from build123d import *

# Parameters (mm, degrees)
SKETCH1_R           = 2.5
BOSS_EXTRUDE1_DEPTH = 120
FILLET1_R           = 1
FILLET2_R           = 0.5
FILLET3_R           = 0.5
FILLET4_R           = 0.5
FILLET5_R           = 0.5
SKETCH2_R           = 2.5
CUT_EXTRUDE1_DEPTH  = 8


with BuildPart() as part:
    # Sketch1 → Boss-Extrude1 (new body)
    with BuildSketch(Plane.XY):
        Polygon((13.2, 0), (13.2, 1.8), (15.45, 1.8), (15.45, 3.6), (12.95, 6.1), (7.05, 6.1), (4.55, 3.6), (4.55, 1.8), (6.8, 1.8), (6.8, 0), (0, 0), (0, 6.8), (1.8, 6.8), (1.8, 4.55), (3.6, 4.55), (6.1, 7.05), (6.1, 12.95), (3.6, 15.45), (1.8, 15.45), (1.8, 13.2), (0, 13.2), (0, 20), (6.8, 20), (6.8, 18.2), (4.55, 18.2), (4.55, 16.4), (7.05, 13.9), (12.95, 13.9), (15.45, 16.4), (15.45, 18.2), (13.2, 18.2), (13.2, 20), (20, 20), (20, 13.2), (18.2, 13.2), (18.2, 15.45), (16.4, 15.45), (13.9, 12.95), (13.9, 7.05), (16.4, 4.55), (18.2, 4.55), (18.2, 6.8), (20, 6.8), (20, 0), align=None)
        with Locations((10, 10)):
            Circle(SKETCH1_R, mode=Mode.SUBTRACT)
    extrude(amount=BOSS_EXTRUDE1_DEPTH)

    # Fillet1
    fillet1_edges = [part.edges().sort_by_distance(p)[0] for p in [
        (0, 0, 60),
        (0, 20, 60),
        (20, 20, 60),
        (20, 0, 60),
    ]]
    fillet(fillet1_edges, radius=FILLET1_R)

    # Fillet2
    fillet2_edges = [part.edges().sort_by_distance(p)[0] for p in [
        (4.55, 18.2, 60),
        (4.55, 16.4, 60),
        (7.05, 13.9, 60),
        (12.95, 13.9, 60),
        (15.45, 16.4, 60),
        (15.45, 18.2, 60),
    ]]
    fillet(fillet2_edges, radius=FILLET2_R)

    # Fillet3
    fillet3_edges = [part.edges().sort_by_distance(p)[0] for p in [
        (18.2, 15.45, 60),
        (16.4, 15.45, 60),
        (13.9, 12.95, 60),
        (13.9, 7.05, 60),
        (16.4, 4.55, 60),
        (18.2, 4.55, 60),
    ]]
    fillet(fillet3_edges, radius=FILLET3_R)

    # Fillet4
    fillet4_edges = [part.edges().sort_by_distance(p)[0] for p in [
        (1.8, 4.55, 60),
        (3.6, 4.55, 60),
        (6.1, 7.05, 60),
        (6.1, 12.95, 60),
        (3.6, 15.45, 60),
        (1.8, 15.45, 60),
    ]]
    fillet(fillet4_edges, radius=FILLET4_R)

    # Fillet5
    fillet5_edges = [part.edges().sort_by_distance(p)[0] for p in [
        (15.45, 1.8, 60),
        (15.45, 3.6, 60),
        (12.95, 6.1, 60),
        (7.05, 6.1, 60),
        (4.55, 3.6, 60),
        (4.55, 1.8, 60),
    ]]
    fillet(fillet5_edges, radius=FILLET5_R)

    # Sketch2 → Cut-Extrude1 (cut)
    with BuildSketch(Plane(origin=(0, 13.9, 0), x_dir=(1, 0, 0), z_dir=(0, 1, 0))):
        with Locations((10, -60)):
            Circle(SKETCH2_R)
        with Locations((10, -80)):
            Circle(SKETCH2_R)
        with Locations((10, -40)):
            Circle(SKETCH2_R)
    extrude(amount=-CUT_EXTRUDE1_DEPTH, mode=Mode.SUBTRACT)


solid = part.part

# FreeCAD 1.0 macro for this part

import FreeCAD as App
import Part
import Sketcher

V = App.Vector
Q = App.Units.Quantity


def edges_at(feature, points):
    """Names of the edges that pass closest to the given points."""
    edges = feature.Shape.Edges
    near = lambda p: min(range(len(edges)), key=lambda i: edges[i].distToShape(Part.Vertex(*p))[0])
    return sorted({f"Edge{near(p) + 1}" for p in points})


def add_polygon(sketch, points):
    """Adds a closed chain of lines whose ends are joined by coincident constraints."""
    first, n = sketch.GeometryCount, len(points)
    for a, b in zip(points, points[1:] + points[:1]):
        sketch.addGeometry(Part.LineSegment(App.Vector(*a, 0), App.Vector(*b, 0)), False)
    for i in range(n):
        sketch.addConstraint(Sketcher.Constraint("Coincident", first + i, 2, first + (i + 1) % n, 1))

doc = App.newDocument("Part")
body = doc.addObject("PartDesign::Body", "Body")

sketch1 = body.newObject("Sketcher::SketchObject", "Sketch")
sketch1.AttachmentSupport = (doc.getObject("XY_Plane"), [""])
sketch1.MapMode = "FlatFace"
add_polygon(sketch1, [(13.2, 1.8), (13.2, 0), (20, 0), (20, 6.8), (18.2, 6.8), (18.2, 4.5), (16.4, 4.5), (13.9, 7), (13.9, 12.9), (16.4, 15.4), (18.2, 15.4), (18.2, 13.2), (20, 13.2), (20, 20), (13.2, 20), (13.2, 18.2), (15.4, 18.2), (15.4, 16.4), (12.9, 13.9), (7, 13.9), (4.5, 16.4), (4.5, 18.2), (6.8, 18.2), (6.8, 20), (0, 20), (0, 13.2), (1.8, 13.2), (1.8, 15.4), (3.6, 15.4), (6.1, 12.9), (6.1, 7), (3.6, 4.5), (1.8, 4.5), (1.8, 6.8), (0, 6.8), (0, 0), (6.8, 0), (6.8, 1.8), (4.5, 1.8), (4.5, 3.6), (7, 6.1), (12.9, 6.1), (15.4, 3.6), (15.4, 1.8)])
sketch1.addGeometry(Part.Circle(V(10, 10, 0), V(0, 0, 1), 2.5), False)
sketch1.addConstraint(Sketcher.Constraint("Vertical", 0))
sketch1.addConstraint(Sketcher.Constraint("Horizontal", 1))
sketch1.addConstraint(Sketcher.Constraint("Vertical", 2))
sketch1.addConstraint(Sketcher.Constraint("Horizontal", 3))
sketch1.addConstraint(Sketcher.Constraint("Vertical", 4))
sketch1.addConstraint(Sketcher.Constraint("Horizontal", 5))
sketch1.addConstraint(Sketcher.Constraint("Vertical", 7))
sketch1.addConstraint(Sketcher.Constraint("Horizontal", 9))
sketch1.addConstraint(Sketcher.Constraint("Vertical", 10))
sketch1.addConstraint(Sketcher.Constraint("Horizontal", 11))
sketch1.addConstraint(Sketcher.Constraint("Vertical", 12))
sketch1.addConstraint(Sketcher.Constraint("Horizontal", 13))
sketch1.addConstraint(Sketcher.Constraint("Vertical", 14))
sketch1.addConstraint(Sketcher.Constraint("Horizontal", 15))
sketch1.addConstraint(Sketcher.Constraint("Vertical", 16))
sketch1.addConstraint(Sketcher.Constraint("Horizontal", 18))
sketch1.addConstraint(Sketcher.Constraint("Vertical", 20))
sketch1.addConstraint(Sketcher.Constraint("Horizontal", 21))
sketch1.addConstraint(Sketcher.Constraint("Vertical", 22))
sketch1.addConstraint(Sketcher.Constraint("Horizontal", 23))
sketch1.addConstraint(Sketcher.Constraint("Vertical", 24))
sketch1.addConstraint(Sketcher.Constraint("Horizontal", 25))
sketch1.addConstraint(Sketcher.Constraint("Vertical", 26))
sketch1.addConstraint(Sketcher.Constraint("Horizontal", 27))
sketch1.addConstraint(Sketcher.Constraint("Vertical", 29))
sketch1.addConstraint(Sketcher.Constraint("Horizontal", 31))
sketch1.addConstraint(Sketcher.Constraint("Vertical", 32))
sketch1.addConstraint(Sketcher.Constraint("Horizontal", 33))
sketch1.addConstraint(Sketcher.Constraint("Vertical", 34))
sketch1.addConstraint(Sketcher.Constraint("Horizontal", 35))
sketch1.addConstraint(Sketcher.Constraint("Vertical", 36))
sketch1.addConstraint(Sketcher.Constraint("Horizontal", 37))
sketch1.addConstraint(Sketcher.Constraint("Vertical", 38))
sketch1.addConstraint(Sketcher.Constraint("Horizontal", 40))
sketch1.addConstraint(Sketcher.Constraint("Vertical", 42))
sketch1.addConstraint(Sketcher.Constraint("Horizontal", 43))
sketch1.addConstraint(Sketcher.Constraint("Coincident", 34, 2, -1, 1))
sketch1.addConstraint(Sketcher.Constraint("PointOnObject", 0, 2, -1))
sketch1.addConstraint(Sketcher.Constraint("PointOnObject", 23, 2, -2))
sketch1.addConstraint(Sketcher.Constraint("Perpendicular", 6, 8))
sketch1.addConstraint(Sketcher.Constraint("Parallel", 8, 17))
sketch1.addConstraint(Sketcher.Constraint("Perpendicular", 17, 19))
sketch1.addConstraint(Sketcher.Constraint("Parallel", 19, 28))
sketch1.addConstraint(Sketcher.Constraint("Perpendicular", 28, 30))
sketch1.addConstraint(Sketcher.Constraint("Parallel", 30, 39))
sketch1.addConstraint(Sketcher.Constraint("Perpendicular", 39, 41))
sketch1.addConstraint(Sketcher.Constraint("Horizontal", 16, 2, 19, 2))
sketch1.addConstraint(Sketcher.Constraint("Horizontal", 15, 2, 20, 2))
sketch1.addConstraint(Sketcher.Constraint("Horizontal", 13, 2, 22, 2))
sketch1.addConstraint(Sketcher.Constraint("Horizontal", 11, 2, 24, 2))
sketch1.addConstraint(Sketcher.Constraint("Horizontal", 9, 2, 26, 2))
sketch1.addConstraint(Sketcher.Constraint("Horizontal", 7, 2, 28, 2))
sketch1.addConstraint(Sketcher.Constraint("Horizontal", 6, 2, 29, 2))
sketch1.addConstraint(Sketcher.Constraint("Horizontal", 5, 2, 30, 2))
sketch1.addConstraint(Sketcher.Constraint("Horizontal", 3, 2, 32, 2))
sketch1.addConstraint(Sketcher.Constraint("Horizontal", 38, 2, 41, 2))
sketch1.addConstraint(Sketcher.Constraint("Horizontal", 37, 2, 42, 2))
sketch1.addConstraint(Sketcher.Constraint("Vertical", 5, 2, 8, 2))
sketch1.addConstraint(Sketcher.Constraint("Vertical", 4, 2, 9, 2))
sketch1.addConstraint(Sketcher.Constraint("Vertical", 2, 2, 11, 2))
sketch1.addConstraint(Sketcher.Constraint("Vertical", 0, 2, 13, 2))
sketch1.addConstraint(Sketcher.Constraint("Vertical", 27, 2, 30, 2))
sketch1.addConstraint(Sketcher.Constraint("Vertical", 26, 2, 31, 2))
sketch1.addConstraint(Sketcher.Constraint("Vertical", 22, 2, 35, 2))
sketch1.addConstraint(Sketcher.Constraint("Vertical", 20, 2, 37, 2))
sketch1.addConstraint(Sketcher.Constraint("Vertical", 18, 2, 39, 2))
sketch1.addConstraint(Sketcher.Constraint("Vertical", 17, 2, 40, 2))
sketch1.addConstraint(Sketcher.Constraint("Equal", 3, 5))
sketch1.addConstraint(Sketcher.Constraint("Equal", 15, 21))
sketch1.addConstraint(Sketcher.Constraint("Equal", 13, 23))
sketch1.addConstraint(Sketcher.Constraint("Equal", 11, 25))
sketch1.addConstraint(Sketcher.Constraint("Equal", 25, 27))
sketch1.addConstraint(Sketcher.Constraint("Equal", 33, 0))
sketch1.addConstraint(Sketcher.Constraint("Equal", 35, 2))
sketch1.addConstraint(Sketcher.Constraint("Equal", 43, 4))
sketch1.addConstraint(Sketcher.Constraint("Equal", 40, 7))
sketch1.addConstraint(Sketcher.Constraint("Equal", 4, 10))
sketch1.addConstraint(Sketcher.Constraint("Equal", 2, 12))
sketch1.addConstraint(Sketcher.Constraint("Equal", 0, 14))
sketch1.addConstraint(Sketcher.Constraint("Equal", 14, 16))
sketch1.addConstraint(Sketcher.Constraint("Equal", 36, 38))
sketch1.addConstraint(Sketcher.Constraint("Equal", 8, 17))
sketch1.addConstraint(Sketcher.Constraint("Diameter", 44, Q("5 mm")))
sketch1.addConstraint(Sketcher.Constraint("DistanceX", 1, 1, 1, 2, Q("6.8 mm")))
sketch1.addConstraint(Sketcher.Constraint("DistanceX", 3, 2, 3, 1, Q("1.8 mm")))
sketch1.addConstraint(Sketcher.Constraint("DistanceX", 18, 2, 18, 1, Q("5.9 mm")))
sketch1.addConstraint(Sketcher.Constraint("DistanceX", -1, 1, 44, 3, Q("10 mm")))
sketch1.addConstraint(Sketcher.Constraint("DistanceY", -1, 1, 44, 3, Q("10 mm")))
sketch1.addConstraint(Sketcher.Constraint("DistanceX", -1, 1, 1, 2, Q("20 mm")))
sketch1.addConstraint(Sketcher.Constraint("DistanceX", 15, 1, 15, 2, Q("2.25 mm")))
pad1 = body.newObject("PartDesign::Pad", "Pad")
pad1.Profile = sketch1
pad1.Length = 120
doc.recompute()

fillet = body.newObject("PartDesign::Fillet", "Fillet")
fillet.Base = (pad1, edges_at(pad1, [
    (0, 0, 60),
    (0, 20, 60),
    (20, 20, 60),
    (20, 0, 60),
]))
fillet.Radius = 1
doc.recompute()

fillet2 = body.newObject("PartDesign::Fillet", "Fillet001")
fillet2.Base = (fillet, edges_at(fillet, [
    (4.55, 18.2, 60),
    (4.55, 16.4, 60),
    (7.05, 13.9, 60),
    (12.95, 13.9, 60),
    (15.45, 16.4, 60),
    (15.45, 18.2, 60),
]))
fillet2.Radius = 0.5
doc.recompute()

fillet3 = body.newObject("PartDesign::Fillet", "Fillet002")
fillet3.Base = (fillet2, edges_at(fillet2, [
    (18.2, 15.45, 60),
    (16.4, 15.45, 60),
    (13.9, 12.95, 60),
    (13.9, 7.05, 60),
    (16.4, 4.55, 60),
    (18.2, 4.55, 60),
]))
fillet3.Radius = 0.5
doc.recompute()

fillet4 = body.newObject("PartDesign::Fillet", "Fillet003")
fillet4.Base = (fillet3, edges_at(fillet3, [
    (1.8, 4.55, 60),
    (3.6, 4.55, 60),
    (6.1, 7.05, 60),
    (6.1, 12.95, 60),
    (3.6, 15.45, 60),
    (1.8, 15.45, 60),
]))
fillet4.Radius = 0.5
doc.recompute()

fillet5 = body.newObject("PartDesign::Fillet", "Fillet004")
fillet5.Base = (fillet4, edges_at(fillet4, [
    (15.45, 1.8, 60),
    (15.45, 3.6, 60),
    (12.95, 6.1, 60),
    (7.05, 6.1, 60),
    (4.55, 3.6, 60),
    (4.55, 1.8, 60),
]))
fillet5.Radius = 0.5

sketch2 = body.newObject("Sketcher::SketchObject", "Sketch001")
sketch2.AttachmentSupport = (doc.getObject("XZ_Plane"), [""])
sketch2.MapMode = "FlatFace"
sketch2.AttachmentOffset = App.Placement(V(0, 0, -13.9), App.Rotation())
sketch2.addGeometry(Part.Circle(V(10, 60, 0), V(0, 0, 1), 2.5), False)
sketch2.addGeometry(Part.Circle(V(10, 80, 0), V(0, 0, 1), 2.5), False)
sketch2.addGeometry(Part.Circle(V(10, 40, 0), V(0, 0, 1), 2.5), False)
sketch2.addConstraint(Sketcher.Constraint("Equal", 0, 1))
sketch2.addConstraint(Sketcher.Constraint("Equal", 1, 2))
sketch2.addConstraint(Sketcher.Constraint("Vertical", 0, 3, 1, 3))
sketch2.addConstraint(Sketcher.Constraint("Vertical", 1, 3, 2, 3))
sketch2.addConstraint(Sketcher.Constraint("Diameter", 0, Q("5 mm")))
sketch2.addConstraint(Sketcher.Constraint("DistanceX", -1, 1, 0, 3, Q("10 mm")))
sketch2.addConstraint(Sketcher.Constraint("DistanceY", -1, 1, 0, 3, Q("60 mm")))
sketch2.addConstraint(Sketcher.Constraint("DistanceY", -1, 1, 1, 3, Q("80 mm")))
sketch2.addConstraint(Sketcher.Constraint("DistanceY", -1, 1, 2, 3, Q("40 mm")))
pocket1 = body.newObject("PartDesign::Pocket", "Pocket")
pocket1.Profile = sketch2
pocket1.Length = 8
pocket1.Reversed = True

doc.recompute()
